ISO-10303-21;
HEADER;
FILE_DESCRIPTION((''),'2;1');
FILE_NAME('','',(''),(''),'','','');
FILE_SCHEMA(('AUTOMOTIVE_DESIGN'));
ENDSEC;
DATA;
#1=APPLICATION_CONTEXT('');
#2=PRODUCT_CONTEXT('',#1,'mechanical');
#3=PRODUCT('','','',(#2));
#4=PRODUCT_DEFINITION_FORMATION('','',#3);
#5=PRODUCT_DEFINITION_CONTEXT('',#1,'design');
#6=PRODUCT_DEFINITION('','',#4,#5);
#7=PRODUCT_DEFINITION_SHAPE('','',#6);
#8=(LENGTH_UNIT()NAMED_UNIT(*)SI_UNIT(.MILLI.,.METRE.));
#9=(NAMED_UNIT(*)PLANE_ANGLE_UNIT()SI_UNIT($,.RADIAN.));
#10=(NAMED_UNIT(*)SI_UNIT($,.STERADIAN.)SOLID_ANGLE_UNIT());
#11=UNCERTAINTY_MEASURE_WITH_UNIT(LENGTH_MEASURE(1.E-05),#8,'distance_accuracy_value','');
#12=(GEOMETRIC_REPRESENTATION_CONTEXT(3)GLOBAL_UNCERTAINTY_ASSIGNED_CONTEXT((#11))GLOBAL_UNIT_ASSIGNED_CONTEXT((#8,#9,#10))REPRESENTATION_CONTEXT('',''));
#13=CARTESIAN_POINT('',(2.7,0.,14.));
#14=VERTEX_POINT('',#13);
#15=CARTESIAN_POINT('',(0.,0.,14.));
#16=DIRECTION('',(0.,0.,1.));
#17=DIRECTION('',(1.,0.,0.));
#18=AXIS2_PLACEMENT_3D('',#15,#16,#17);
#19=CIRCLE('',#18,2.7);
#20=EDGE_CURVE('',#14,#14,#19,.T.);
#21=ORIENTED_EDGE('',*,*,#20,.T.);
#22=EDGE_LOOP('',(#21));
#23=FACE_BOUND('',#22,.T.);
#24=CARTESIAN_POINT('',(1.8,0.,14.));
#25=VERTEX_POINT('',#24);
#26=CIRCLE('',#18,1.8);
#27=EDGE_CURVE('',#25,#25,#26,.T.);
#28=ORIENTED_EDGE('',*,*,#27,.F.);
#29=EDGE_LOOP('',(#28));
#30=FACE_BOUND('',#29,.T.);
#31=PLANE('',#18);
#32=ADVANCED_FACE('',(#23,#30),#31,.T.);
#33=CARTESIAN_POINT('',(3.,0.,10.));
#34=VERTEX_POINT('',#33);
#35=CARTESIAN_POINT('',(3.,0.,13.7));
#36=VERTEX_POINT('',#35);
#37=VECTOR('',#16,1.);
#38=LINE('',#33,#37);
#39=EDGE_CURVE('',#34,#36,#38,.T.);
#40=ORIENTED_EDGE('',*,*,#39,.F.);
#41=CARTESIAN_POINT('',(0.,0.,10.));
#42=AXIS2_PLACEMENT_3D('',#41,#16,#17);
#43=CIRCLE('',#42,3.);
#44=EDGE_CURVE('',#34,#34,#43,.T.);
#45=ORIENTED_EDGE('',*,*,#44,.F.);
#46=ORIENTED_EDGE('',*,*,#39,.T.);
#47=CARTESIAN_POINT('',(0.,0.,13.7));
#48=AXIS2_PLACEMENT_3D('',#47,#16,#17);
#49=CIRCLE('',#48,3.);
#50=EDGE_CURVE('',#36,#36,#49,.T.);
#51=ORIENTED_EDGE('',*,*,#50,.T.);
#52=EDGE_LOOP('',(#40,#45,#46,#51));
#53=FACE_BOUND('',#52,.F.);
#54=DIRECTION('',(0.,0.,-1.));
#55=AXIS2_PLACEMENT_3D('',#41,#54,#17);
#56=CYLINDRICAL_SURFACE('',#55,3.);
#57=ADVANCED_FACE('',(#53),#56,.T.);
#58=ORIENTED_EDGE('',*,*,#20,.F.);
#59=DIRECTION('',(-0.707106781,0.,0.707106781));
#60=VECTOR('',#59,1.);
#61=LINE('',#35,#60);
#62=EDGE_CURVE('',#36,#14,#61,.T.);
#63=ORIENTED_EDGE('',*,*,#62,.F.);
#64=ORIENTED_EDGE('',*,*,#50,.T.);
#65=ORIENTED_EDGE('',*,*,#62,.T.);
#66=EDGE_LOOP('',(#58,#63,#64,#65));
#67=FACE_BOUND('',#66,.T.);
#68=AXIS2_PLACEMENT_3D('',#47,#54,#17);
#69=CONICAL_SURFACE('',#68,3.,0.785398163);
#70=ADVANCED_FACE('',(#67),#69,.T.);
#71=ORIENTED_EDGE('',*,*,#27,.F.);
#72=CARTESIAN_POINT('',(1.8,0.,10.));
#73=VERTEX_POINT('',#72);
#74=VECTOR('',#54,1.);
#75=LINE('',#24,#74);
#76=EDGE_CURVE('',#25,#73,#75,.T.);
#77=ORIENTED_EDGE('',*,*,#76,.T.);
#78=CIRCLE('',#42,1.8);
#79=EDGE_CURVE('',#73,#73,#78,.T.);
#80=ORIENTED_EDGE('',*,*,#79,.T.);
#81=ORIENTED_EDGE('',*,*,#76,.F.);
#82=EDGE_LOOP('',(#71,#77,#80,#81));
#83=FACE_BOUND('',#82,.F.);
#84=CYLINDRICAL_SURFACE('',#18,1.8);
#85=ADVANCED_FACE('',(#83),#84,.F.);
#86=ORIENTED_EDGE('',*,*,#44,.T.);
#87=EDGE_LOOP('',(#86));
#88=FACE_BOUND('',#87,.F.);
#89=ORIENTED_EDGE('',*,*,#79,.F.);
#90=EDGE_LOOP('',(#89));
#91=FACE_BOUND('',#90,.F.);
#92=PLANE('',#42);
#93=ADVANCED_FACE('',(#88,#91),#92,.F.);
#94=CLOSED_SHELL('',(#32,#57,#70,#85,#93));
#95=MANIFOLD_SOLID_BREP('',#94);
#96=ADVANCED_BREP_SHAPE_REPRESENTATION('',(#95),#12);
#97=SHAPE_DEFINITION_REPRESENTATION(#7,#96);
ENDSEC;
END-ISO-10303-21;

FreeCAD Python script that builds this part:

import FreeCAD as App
import Part
import Sketcher


def edges_at(feature, points):
    """Names of the edges that pass closest to the given points."""
    edges = feature.Shape.Edges
    near = lambda p: min(range(len(edges)), key=lambda i: edges[i].distToShape(Part.Vertex(*p))[0])
    return sorted({f"Edge{near(p) + 1}" for p in points})

doc = App.newDocument("Part")
body = doc.addObject("PartDesign::Body", "Body")

# Sketch on XY plane
sketch1 = body.newObject("Sketcher::SketchObject", "Sketch")
sketch1.AttachmentSupport = (doc.getObject("XY_Plane"), [""])
sketch1.MapMode = "FlatFace"
sketch1.AttachmentOffset = App.Placement(App.Vector(0, 0, 11), App.Rotation())
sketch1.addGeometry(Part.Circle(App.Vector(0, 0, 0), App.Vector(0, 0, 1), 3), False)
sketch1.addConstraint(Sketcher.Constraint("Coincident", 0, 3, -1, 1))
sketch1.addConstraint(Sketcher.Constraint("Diameter", 0, 6.0))
pad1 = body.newObject("PartDesign::Pad", "Pad")
pad1.Profile = sketch1
pad1.Length = 4

# Sketch on XY plane
sketch2 = body.newObject("Sketcher::SketchObject", "Sketch001")
sketch2.AttachmentSupport = (doc.getObject("XY_Plane"), [""])
sketch2.MapMode = "FlatFace"
sketch2.AttachmentOffset = App.Placement(App.Vector(0, 0, 15), App.Rotation())
sketch2.addGeometry(Part.Circle(App.Vector(0, 0, 0), App.Vector(0, 0, 1), 1.8), False)
sketch2.addConstraint(Sketcher.Constraint("Coincident", 0, 3, -1, 1))
sketch2.addConstraint(Sketcher.Constraint("Diameter", 0, 3.6))
pocket1 = body.newObject("PartDesign::Pocket", "Pocket")
pocket1.Profile = sketch2
pocket1.Length = 6
doc.recompute()

chamfer = body.newObject("PartDesign::Chamfer", "Chamfer")
chamfer.Base = (pocket1, edges_at(pocket1, [(-3, 0, 15)]))
chamfer.Size = 0.3
body2 = doc.addObject("PartDesign::Body", "Body001")
doc.recompute()

body.Placement = App.Placement(App.Vector(0, 0, -1), App.Rotation(App.Vector(0, 0, 1), 0))
boolean = body2.newObject("PartDesign::Boolean", "Boolean")
boolean.Type = "Fuse"
boolean.addObjects([body])

doc.recompute()
